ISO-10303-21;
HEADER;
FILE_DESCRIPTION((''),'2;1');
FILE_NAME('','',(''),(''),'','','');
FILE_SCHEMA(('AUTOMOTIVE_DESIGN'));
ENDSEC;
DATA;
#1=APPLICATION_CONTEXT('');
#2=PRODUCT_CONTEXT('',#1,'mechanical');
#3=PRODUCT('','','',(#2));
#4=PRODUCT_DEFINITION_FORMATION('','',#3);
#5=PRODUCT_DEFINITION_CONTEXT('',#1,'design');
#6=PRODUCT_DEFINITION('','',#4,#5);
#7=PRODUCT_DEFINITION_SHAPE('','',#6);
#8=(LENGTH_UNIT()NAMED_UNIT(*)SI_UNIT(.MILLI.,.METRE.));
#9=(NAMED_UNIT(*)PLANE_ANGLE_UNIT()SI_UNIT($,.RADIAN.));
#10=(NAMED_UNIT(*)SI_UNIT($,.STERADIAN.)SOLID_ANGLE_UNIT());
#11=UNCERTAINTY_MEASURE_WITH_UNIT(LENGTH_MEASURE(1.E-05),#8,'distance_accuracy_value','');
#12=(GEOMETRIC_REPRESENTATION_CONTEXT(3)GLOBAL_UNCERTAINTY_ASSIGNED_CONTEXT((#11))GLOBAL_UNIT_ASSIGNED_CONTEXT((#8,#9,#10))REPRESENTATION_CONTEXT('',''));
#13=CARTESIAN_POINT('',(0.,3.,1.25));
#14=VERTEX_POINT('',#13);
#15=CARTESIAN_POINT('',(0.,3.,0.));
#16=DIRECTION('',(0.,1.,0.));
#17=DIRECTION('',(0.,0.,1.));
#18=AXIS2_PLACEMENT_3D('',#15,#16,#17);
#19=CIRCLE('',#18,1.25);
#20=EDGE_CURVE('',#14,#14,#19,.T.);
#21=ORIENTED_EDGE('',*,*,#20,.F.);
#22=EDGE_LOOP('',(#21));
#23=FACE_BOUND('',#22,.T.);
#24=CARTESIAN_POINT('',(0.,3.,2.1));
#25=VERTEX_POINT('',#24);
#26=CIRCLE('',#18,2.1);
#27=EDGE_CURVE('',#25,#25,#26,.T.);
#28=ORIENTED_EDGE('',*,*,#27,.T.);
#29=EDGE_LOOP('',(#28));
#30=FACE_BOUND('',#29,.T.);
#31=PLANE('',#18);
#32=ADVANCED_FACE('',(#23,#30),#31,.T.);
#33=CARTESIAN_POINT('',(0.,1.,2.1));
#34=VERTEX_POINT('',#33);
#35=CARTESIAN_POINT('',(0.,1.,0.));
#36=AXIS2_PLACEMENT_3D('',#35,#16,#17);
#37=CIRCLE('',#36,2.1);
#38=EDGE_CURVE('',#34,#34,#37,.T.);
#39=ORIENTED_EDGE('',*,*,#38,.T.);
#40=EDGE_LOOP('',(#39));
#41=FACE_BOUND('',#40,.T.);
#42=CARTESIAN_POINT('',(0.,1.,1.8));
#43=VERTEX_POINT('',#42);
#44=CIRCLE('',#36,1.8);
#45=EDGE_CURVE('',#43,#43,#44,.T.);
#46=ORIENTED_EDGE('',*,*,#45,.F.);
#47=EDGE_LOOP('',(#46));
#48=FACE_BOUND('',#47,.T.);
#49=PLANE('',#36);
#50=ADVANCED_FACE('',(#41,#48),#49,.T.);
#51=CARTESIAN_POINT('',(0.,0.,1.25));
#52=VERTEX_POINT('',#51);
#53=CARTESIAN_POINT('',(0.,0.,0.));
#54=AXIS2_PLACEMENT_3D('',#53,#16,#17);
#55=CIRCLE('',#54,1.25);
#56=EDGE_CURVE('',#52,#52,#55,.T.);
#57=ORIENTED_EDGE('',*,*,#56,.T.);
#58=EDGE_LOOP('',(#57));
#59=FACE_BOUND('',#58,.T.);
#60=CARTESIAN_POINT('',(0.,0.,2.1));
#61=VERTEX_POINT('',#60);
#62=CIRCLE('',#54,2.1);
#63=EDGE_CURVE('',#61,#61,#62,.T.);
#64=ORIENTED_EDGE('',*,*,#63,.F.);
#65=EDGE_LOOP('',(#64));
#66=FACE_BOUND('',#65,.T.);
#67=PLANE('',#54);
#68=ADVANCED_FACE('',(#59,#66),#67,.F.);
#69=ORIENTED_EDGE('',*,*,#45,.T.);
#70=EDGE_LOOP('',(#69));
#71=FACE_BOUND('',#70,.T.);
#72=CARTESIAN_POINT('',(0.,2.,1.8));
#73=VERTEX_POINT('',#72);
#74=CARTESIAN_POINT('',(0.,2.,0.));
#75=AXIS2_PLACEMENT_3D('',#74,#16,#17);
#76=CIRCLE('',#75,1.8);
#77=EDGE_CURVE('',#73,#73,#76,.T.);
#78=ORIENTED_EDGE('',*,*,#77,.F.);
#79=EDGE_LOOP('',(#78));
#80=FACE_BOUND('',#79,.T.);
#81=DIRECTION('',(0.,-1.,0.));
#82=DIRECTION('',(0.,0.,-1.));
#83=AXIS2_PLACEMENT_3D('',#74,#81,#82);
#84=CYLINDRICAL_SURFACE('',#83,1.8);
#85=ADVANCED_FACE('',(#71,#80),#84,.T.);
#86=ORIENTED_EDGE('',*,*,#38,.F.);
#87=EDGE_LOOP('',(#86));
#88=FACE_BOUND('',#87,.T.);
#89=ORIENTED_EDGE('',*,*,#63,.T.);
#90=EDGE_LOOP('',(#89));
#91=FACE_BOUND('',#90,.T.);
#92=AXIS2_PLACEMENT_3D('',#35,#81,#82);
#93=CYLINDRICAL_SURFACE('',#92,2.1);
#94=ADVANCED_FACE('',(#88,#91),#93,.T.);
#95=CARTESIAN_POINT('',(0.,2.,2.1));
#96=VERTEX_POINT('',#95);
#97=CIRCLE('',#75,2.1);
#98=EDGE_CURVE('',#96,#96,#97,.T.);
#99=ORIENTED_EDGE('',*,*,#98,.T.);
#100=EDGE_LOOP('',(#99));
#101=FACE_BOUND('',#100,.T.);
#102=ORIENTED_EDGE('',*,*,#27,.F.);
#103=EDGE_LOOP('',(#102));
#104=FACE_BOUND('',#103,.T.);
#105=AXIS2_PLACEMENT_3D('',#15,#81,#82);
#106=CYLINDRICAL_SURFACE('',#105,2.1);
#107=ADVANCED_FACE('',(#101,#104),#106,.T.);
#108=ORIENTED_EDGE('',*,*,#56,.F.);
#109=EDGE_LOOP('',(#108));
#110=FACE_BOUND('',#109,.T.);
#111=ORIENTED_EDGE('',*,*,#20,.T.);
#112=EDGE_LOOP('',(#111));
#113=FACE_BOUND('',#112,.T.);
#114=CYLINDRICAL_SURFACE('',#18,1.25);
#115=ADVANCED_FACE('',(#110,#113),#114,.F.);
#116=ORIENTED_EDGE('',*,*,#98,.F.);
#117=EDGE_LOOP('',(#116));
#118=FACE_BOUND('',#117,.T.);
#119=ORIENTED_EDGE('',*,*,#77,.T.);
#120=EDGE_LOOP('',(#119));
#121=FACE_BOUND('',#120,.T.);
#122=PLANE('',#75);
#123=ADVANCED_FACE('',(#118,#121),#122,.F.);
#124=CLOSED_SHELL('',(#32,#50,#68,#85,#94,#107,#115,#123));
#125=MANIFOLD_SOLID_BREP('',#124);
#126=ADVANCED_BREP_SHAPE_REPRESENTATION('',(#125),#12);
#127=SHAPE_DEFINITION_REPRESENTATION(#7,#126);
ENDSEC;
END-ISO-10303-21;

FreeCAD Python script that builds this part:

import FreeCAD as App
import Part
import Sketcher

V = App.Vector
Q = App.Units.Quantity

doc = App.newDocument("Part")
body = doc.addObject("PartDesign::Body", "Body")

# Sketch on XZ plane
sketch1 = body.newObject("Sketcher::SketchObject", "Sketch")
sketch1.AttachmentSupport = (doc.getObject("XZ_Plane"), [""])
sketch1.MapMode = "FlatFace"
sketch1.addGeometry(Part.Circle(V(0, 0, 0), V(0, 0, 1), 2.1), False)
sketch1.addConstraint(Sketcher.Constraint("Coincident", 0, 3, -1, 1))
sketch1.addConstraint(Sketcher.Constraint("Diameter", 0, Q("4.2 mm")))
pad1 = body.newObject("PartDesign::Pad", "Pad")
pad1.Profile = sketch1
pad1.Length = 1
pad1.Reversed = True

# Sketch on XZ plane
sketch2 = body.newObject("Sketcher::SketchObject", "Sketch001")
sketch2.AttachmentSupport = (doc.getObject("XZ_Plane"), [""])
sketch2.MapMode = "FlatFace"
sketch2.AttachmentOffset = App.Placement(V(0, 0, -1), App.Rotation())
sketch2.addGeometry(Part.Circle(V(0, 0, 0), V(0, 0, 1), 1.8), False)
sketch2.addConstraint(Sketcher.Constraint("Coincident", 0, 3, -1, 1))
sketch2.addConstraint(Sketcher.Constraint("Diameter", 0, Q("3.6 mm")))
pad2 = body.newObject("PartDesign::Pad", "Pad001")
pad2.Profile = sketch2
pad2.Length = 1
pad2.Reversed = True

# Sketch on XZ plane
sketch3 = body.newObject("Sketcher::SketchObject", "Sketch002")
sketch3.AttachmentSupport = (doc.getObject("XZ_Plane"), [""])
sketch3.MapMode = "FlatFace"
sketch3.AttachmentOffset = App.Placement(V(0, 0, -2), App.Rotation())
sketch3.addGeometry(Part.Circle(V(0, 0, 0), V(0, 0, 1), 2.1), False)
sketch3.addConstraint(Sketcher.Constraint("Coincident", 0, 3, -1, 1))
sketch3.addConstraint(Sketcher.Constraint("Diameter", 0, Q("4.2 mm")))
pad3 = body.newObject("PartDesign::Pad", "Pad002")
pad3.Profile = sketch3
pad3.Length = 1
pad3.Reversed = True

# Sketch on XZ plane
sketch4 = body.newObject("Sketcher::SketchObject", "Sketch003")
sketch4.AttachmentSupport = (doc.getObject("XZ_Plane"), [""])
sketch4.MapMode = "FlatFace"
sketch4.AttachmentOffset = App.Placement(V(0, 0, -3), App.Rotation())
sketch4.addGeometry(Part.Circle(V(0, 0, 0), V(0, 0, 1), 1.2), False)
sketch4.addConstraint(Sketcher.Constraint("Coincident", 0, 3, -1, 1))
sketch4.addConstraint(Sketcher.Constraint("Diameter", 0, Q("2.5 mm")))
doc.recompute()
hole = body.newObject("PartDesign::Hole", "Hole")
hole.Profile = sketch4
hole.ThreadType = "None"
hole.Diameter = 2.5
hole.DepthType = "ThroughAll"
hole.Reversed = True

doc.recompute()
